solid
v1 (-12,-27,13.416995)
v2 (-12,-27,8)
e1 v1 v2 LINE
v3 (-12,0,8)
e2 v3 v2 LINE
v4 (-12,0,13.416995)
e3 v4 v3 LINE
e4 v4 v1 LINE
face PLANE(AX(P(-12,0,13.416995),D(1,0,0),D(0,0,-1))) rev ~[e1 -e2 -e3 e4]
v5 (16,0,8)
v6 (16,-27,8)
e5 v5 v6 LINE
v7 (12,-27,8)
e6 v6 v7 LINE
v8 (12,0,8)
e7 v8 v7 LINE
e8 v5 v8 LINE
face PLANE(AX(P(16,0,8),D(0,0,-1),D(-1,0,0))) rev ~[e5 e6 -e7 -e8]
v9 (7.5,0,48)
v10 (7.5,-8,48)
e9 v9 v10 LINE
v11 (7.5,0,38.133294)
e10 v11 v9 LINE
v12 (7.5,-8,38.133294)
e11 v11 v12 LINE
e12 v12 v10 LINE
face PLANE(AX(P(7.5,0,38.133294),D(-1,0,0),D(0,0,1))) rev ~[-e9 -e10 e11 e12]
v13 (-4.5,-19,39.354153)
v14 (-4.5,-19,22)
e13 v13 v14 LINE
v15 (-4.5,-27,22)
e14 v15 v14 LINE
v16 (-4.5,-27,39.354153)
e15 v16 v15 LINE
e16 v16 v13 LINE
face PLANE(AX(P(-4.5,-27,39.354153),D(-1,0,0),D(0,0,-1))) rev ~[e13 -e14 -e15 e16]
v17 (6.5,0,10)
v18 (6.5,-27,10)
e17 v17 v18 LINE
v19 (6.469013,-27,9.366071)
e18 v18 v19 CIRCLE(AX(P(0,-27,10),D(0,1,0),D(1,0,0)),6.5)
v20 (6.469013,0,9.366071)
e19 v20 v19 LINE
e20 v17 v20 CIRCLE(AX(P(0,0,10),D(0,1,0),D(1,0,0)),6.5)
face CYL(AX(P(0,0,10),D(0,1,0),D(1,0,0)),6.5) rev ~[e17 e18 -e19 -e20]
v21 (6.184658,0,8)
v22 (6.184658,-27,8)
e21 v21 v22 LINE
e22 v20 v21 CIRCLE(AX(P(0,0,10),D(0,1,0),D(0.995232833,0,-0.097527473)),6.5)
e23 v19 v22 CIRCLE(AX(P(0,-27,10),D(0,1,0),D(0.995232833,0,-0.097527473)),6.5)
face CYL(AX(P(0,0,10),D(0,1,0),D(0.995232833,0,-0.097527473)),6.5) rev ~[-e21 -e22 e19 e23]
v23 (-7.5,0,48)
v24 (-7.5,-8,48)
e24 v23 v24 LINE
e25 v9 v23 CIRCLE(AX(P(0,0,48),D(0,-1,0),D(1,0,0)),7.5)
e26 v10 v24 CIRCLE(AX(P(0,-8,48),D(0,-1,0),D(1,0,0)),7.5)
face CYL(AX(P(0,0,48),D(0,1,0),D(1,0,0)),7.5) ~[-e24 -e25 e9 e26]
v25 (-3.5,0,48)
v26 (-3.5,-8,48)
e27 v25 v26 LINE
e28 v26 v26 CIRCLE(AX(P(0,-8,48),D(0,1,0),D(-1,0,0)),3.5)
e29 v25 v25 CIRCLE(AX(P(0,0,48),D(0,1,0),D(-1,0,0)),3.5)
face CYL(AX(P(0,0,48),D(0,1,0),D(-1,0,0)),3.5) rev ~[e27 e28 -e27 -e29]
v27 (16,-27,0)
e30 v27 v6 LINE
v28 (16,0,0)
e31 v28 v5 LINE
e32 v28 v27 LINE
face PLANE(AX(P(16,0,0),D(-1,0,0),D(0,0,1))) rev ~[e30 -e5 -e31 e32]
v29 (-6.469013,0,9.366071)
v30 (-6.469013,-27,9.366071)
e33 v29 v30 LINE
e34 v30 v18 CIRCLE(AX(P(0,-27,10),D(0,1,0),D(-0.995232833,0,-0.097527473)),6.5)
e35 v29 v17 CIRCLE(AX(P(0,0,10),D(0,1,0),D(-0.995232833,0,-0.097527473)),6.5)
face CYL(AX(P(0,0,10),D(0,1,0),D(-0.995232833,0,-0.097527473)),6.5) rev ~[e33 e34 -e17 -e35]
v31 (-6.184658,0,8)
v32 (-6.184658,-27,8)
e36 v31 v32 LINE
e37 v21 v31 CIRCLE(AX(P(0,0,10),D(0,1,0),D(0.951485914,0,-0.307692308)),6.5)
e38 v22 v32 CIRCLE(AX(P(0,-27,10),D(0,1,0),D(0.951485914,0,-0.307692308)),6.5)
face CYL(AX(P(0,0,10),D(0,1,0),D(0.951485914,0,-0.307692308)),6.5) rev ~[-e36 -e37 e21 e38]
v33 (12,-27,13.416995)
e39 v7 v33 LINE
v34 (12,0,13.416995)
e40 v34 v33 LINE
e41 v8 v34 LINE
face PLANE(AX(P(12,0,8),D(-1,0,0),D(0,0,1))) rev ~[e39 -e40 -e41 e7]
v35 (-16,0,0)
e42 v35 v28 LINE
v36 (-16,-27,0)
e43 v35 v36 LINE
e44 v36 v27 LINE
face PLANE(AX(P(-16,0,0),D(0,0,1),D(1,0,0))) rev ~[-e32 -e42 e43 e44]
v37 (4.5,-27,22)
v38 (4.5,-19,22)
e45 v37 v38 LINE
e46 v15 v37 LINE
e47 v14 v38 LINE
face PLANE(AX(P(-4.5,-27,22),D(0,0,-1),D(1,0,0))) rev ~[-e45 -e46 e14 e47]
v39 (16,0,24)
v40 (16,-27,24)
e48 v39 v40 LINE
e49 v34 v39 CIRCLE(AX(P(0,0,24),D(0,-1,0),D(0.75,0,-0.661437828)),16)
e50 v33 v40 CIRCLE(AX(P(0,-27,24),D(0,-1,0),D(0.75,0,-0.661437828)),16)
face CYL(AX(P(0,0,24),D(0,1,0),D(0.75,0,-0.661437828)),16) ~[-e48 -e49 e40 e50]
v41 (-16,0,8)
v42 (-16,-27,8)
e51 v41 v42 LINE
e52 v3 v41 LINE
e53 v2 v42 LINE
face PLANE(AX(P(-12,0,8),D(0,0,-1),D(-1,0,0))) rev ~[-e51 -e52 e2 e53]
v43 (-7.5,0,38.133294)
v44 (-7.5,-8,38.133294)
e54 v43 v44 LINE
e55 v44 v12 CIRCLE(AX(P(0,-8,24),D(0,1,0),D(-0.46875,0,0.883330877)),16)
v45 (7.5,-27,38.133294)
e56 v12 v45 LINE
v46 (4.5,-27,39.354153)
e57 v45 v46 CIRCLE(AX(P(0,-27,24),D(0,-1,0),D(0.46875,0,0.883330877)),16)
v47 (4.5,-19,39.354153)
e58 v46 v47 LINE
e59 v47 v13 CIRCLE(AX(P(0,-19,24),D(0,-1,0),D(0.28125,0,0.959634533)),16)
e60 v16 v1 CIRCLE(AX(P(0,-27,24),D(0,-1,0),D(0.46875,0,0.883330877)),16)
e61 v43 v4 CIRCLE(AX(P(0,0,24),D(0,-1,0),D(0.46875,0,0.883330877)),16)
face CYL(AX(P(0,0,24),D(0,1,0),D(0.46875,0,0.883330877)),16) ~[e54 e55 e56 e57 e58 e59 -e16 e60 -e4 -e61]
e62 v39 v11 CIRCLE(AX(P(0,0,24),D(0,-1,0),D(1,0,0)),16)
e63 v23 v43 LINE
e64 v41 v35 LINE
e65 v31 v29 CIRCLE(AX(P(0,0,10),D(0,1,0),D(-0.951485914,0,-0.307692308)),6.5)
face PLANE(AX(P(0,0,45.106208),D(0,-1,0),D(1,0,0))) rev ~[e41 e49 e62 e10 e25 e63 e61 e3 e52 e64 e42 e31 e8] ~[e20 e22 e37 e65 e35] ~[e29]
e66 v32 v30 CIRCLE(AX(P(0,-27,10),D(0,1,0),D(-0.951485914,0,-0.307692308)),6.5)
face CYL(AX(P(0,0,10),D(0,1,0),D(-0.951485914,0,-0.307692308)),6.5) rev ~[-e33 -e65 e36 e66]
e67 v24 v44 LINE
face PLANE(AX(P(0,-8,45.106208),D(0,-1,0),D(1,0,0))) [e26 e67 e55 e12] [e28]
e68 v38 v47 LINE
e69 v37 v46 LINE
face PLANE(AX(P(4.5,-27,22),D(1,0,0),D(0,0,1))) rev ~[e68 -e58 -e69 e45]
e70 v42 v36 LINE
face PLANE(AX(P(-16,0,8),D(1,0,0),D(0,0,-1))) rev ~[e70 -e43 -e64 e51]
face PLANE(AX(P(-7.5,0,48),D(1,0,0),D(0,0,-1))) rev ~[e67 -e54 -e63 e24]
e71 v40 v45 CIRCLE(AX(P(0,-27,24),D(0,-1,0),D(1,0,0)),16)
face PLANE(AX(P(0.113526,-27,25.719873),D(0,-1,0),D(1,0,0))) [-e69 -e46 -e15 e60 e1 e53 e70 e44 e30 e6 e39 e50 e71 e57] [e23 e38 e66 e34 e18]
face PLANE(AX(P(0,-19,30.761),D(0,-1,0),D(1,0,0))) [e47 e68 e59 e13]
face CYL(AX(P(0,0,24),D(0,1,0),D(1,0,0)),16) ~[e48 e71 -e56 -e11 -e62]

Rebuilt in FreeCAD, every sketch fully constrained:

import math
import FreeCAD as App
import Part
import Sketcher
Q = App.Units.Quantity

doc = App.newDocument("Part")
params = doc.addObject("Spreadsheet::Sheet", "Params")
for row, (alias, value) in enumerate([
    ("sketch1_radius", "16 mm"),
    ("sketch1_radius2", "6.5 mm"),
    ("sketch1_width", "4 mm"),
    ("sketch1_height", "8 mm"),
    ("pad1_length", "27 mm"),
    ("sketch2_diameter", "7 mm"),
    ("sketch2_radius", "16 mm"),
    ("sketch2_radius2", "7.5 mm"),
    ("pad2_length", "8 mm"),
    ("sketch3_radius", "16 mm"),
    ("sketch3_width", "9 mm"),
    ("pocket1_length", "8 mm"),
], start=1):
    params.set(f"A{row}", alias)
    params.set(f"B{row}", "=" + value)
    params.setAlias(f"B{row}", alias)

body = doc.addObject("PartDesign::Body", "Body")

# Sketch on XZ plane
sketch1 = body.newObject("Sketcher::SketchObject", "Sketch")
sketch1.AttachmentSupport = (doc.getObject("XZ_Plane"), [""])
sketch1.MapMode = "FlatFace"
sketch1.addGeometry([
    Part.LineSegment(App.Vector(-12, 8, 0), App.Vector(-16, 8, 0)),  # 0
    Part.LineSegment(App.Vector(-16, 8, 0), App.Vector(-16, 0, 0)),  # 1
    Part.LineSegment(App.Vector(-16, 0, 0), App.Vector(16, 0, 0)),  # 2
    Part.LineSegment(App.Vector(16, 0, 0), App.Vector(16, 8, 0)),  # 3
    Part.LineSegment(App.Vector(16, 8, 0), App.Vector(12, 8, 0)),  # 4
    Part.LineSegment(App.Vector(12, 8, 0), App.Vector(12, 13.4, 0)),  # 5
    Part.ArcOfCircle(Part.Circle(App.Vector(0, 24, 0), App.Vector(0, 0, 1), 16), math.radians(-41), math.radians(0)),  # 6
    Part.ArcOfCircle(Part.Circle(App.Vector(0, 24, 0), App.Vector(0, 0, 1), 16), math.radians(0), math.radians(62)),  # 7
    Part.ArcOfCircle(Part.Circle(App.Vector(0, 24, 0), App.Vector(0, 0, 1), 16), math.radians(62), math.radians(221)),  # 8
    Part.LineSegment(App.Vector(-12, 13.4, 0), App.Vector(-12, 8, 0)),  # 9
    Part.ArcOfCircle(Part.Circle(App.Vector(0, 10, 0), App.Vector(0, 0, 1), 6.5), math.radians(0), math.radians(186)),  # 10
    Part.ArcOfCircle(Part.Circle(App.Vector(0, 10, 0), App.Vector(0, 0, 1), 6.5), math.radians(-5.6), math.radians(0)),  # 11
    Part.ArcOfCircle(Part.Circle(App.Vector(0, 10, 0), App.Vector(0, 0, 1), 6.5), math.radians(-17.92), math.radians(-5.6)),  # 12
    Part.ArcOfCircle(Part.Circle(App.Vector(0, 10, 0), App.Vector(0, 0, 1), 6.5), math.radians(-162), math.radians(-18)),  # 13
    Part.ArcOfCircle(Part.Circle(App.Vector(0, 10, 0), App.Vector(0, 0, 1), 6.5), math.radians(-174.4), math.radians(-162.08)),  # 14
], False)
sketch1.addConstraint([
    Sketcher.Constraint("Coincident", 0, 2, 1, 1),
    Sketcher.Constraint("Coincident", 1, 2, 2, 1),
    Sketcher.Constraint("Coincident", 2, 2, 3, 1),
    Sketcher.Constraint("Coincident", 3, 2, 4, 1),
    Sketcher.Constraint("Coincident", 4, 2, 5, 1),
    Sketcher.Constraint("Coincident", 5, 2, 6, 1),
    Sketcher.Constraint("Tangent", 6, 2, 7, 1),
    Sketcher.Constraint("Tangent", 7, 2, 8, 1),
    Sketcher.Constraint("Coincident", 8, 2, 9, 1),
    Sketcher.Constraint("Coincident", 9, 2, 0, 1),
    Sketcher.Constraint("Tangent", 10, 1, 11, 2),
    Sketcher.Constraint("Tangent", 11, 1, 12, 2),
    Sketcher.Constraint("Tangent", 12, 1, 13, 2),
    Sketcher.Constraint("Tangent", 13, 1, 14, 2),
    Sketcher.Constraint("Tangent", 14, 1, 10, 2),
    Sketcher.Constraint("Horizontal", 0),
    Sketcher.Constraint("Vertical", 1),
    Sketcher.Constraint("Horizontal", 2),
    Sketcher.Constraint("Vertical", 3),
    Sketcher.Constraint("Horizontal", 4),
    Sketcher.Constraint("Vertical", 5),
    Sketcher.Constraint("Vertical", 9),
    Sketcher.Constraint("Coincident", 8, 3, 6, 3),
    Sketcher.Constraint("Coincident", 12, 3, 10, 3),
    Sketcher.Constraint("Symmetric", 1, 2, 2, 2, -1, 1),
    Sketcher.Constraint("Symmetric", 5, 2, 8, 2, -2),
    Sketcher.Constraint("Symmetric", 12, 1, 13, 1, -2),
    Sketcher.Constraint("Horizontal", 0, 2, 3, 2),
    Sketcher.Constraint("Horizontal", 8, 3, 6, 2),
    Sketcher.Constraint("Horizontal", 14, 3, 10, 1),
    Sketcher.Constraint("Horizontal", 9, 2, 12, 1),
    Sketcher.Constraint("Horizontal", 11, 1, 14, 1),
    Sketcher.Constraint("Vertical", 3, 2, 6, 2),
    Sketcher.Constraint("Radius", 6, Q("16 mm")),
    Sketcher.Constraint("Radius", 10, Q("6.5 mm")),
    Sketcher.Constraint("DistanceX", 0, 2, 0, 1, Q("4 mm")),
    Sketcher.Constraint("DistanceY", 1, 2, 1, 1, Q("8 mm")),
    Sketcher.Constraint("DistanceY", -1, 1, 6, 3, Q("24 mm")),
    Sketcher.Constraint("DistanceY", -1, 1, 10, 3, Q("10 mm")),
    Sketcher.Constraint("DistanceX", -1, 1, 7, 2, Q("7.5 mm")),
    Sketcher.Constraint("DistanceY", -1, 1, 11, 1, Q("9.366071 mm")),
])
sketch1.setExpression("Constraints[33]", "Params.sketch1_radius")
sketch1.setExpression("Constraints[34]", "Params.sketch1_radius2")
sketch1.setExpression("Constraints[35]", "Params.sketch1_width")
sketch1.setExpression("Constraints[36]", "Params.sketch1_height")
pad1 = body.newObject("PartDesign::Pad", "Pad")
pad1.Profile = sketch1
pad1.setExpression("Length", "Params.pad1_length")

# Sketch on XZ plane
sketch2 = body.newObject("Sketcher::SketchObject", "Sketch001")
sketch2.AttachmentSupport = (doc.getObject("XZ_Plane"), [""])
sketch2.MapMode = "FlatFace"
sketch2.addGeometry([
    Part.ArcOfCircle(Part.Circle(App.Vector(0, 48, 0), App.Vector(0, 0, 1), 7.5), math.radians(0), math.radians(180)),  # 0
    Part.LineSegment(App.Vector(-7.5, 48, 0), App.Vector(-7.5, 38.1, 0)),  # 1
    Part.ArcOfCircle(Part.Circle(App.Vector(0, 24, 0), App.Vector(0, 0, 1), 16), math.radians(62), math.radians(118)),  # 2
    Part.LineSegment(App.Vector(7.5, 38.1, 0), App.Vector(7.5, 48, 0)),  # 3
    Part.Circle(App.Vector(0, 48, 0), App.Vector(0, 0, 1), 3.5),  # 4
], False)
sketch2.addConstraint([
    Sketcher.Constraint("Tangent", 0, 2, 1, 1),
    Sketcher.Constraint("Coincident", 1, 2, 2, 2),
    Sketcher.Constraint("Coincident", 2, 1, 3, 1),
    Sketcher.Constraint("Tangent", 3, 2, 0, 1),
    Sketcher.Constraint("Vertical", 1),
    Sketcher.Constraint("Vertical", 3),
    Sketcher.Constraint("Coincident", 4, 3, 0, 3),
    Sketcher.Constraint("Symmetric", 1, 2, 2, 1, -2),
    Sketcher.Constraint("Diameter", 4, Q("7 mm")),
    Sketcher.Constraint("Radius", 2, Q("16 mm")),
    Sketcher.Constraint("Radius", 0, Q("7.5 mm")),
    Sketcher.Constraint("DistanceY", -1, 1, 0, 3, Q("48 mm")),
    Sketcher.Constraint("DistanceY", -1, 1, 2, 3, Q("24 mm")),
])
sketch2.setExpression("Constraints[8]", "Params.sketch2_diameter")
sketch2.setExpression("Constraints[9]", "Params.sketch2_radius")
sketch2.setExpression("Constraints[10]", "Params.sketch2_radius2")
pad2 = body.newObject("PartDesign::Pad", "Pad001")
pad2.Profile = sketch2
pad2.setExpression("Length", "Params.pad2_length")

# Sketch on XZ plane
sketch3 = body.newObject("Sketcher::SketchObject", "Sketch002")
sketch3.AttachmentSupport = (doc.getObject("XZ_Plane"), [""])
sketch3.MapMode = "FlatFace"
sketch3.AttachmentOffset = App.Placement(App.Vector(0, 0, 27), App.Rotation())
sketch3.addGeometry([
    Part.LineSegment(App.Vector(-4, 39, 0), App.Vector(-4, 22, 0)),
    Part.LineSegment(App.Vector(-4, 22, 0), App.Vector(4, 22, 0)),
    Part.LineSegment(App.Vector(4, 22, 0), App.Vector(4, 39, 0)),
    Part.ArcOfCircle(Part.Circle(App.Vector(0, 24, 0), App.Vector(0, 0, 1), 16), math.radians(74), math.radians(106)),
], False)
sketch3.addConstraint([
    Sketcher.Constraint("Coincident", 0, 2, 1, 1),
    Sketcher.Constraint("Coincident", 1, 2, 2, 1),
    Sketcher.Constraint("Coincident", 2, 2, 3, 1),
    Sketcher.Constraint("Coincident", 3, 2, 0, 1),
    Sketcher.Constraint("Vertical", 0),
    Sketcher.Constraint("Horizontal", 1),
    Sketcher.Constraint("Vertical", 2),
    Sketcher.Constraint("Symmetric", 2, 2, 3, 2, -2),
    Sketcher.Constraint("Radius", 3, Q("16 mm")),
    Sketcher.Constraint("DistanceX", 1, 1, 1, 2, Q("9 mm")),
    Sketcher.Constraint("DistanceY", -1, 1, 3, 3, Q("24 mm")),
    Sketcher.Constraint("DistanceY", -1, 1, 0, 2, Q("22 mm")),
])
sketch3.setExpression("Constraints[8]", "Params.sketch3_radius")
sketch3.setExpression("Constraints[9]", "Params.sketch3_width")
pocket1 = body.newObject("PartDesign::Pocket", "Pocket")
pocket1.Profile = sketch3
pocket1.setExpression("Length", "Params.pocket1_length")

doc.recompute()
